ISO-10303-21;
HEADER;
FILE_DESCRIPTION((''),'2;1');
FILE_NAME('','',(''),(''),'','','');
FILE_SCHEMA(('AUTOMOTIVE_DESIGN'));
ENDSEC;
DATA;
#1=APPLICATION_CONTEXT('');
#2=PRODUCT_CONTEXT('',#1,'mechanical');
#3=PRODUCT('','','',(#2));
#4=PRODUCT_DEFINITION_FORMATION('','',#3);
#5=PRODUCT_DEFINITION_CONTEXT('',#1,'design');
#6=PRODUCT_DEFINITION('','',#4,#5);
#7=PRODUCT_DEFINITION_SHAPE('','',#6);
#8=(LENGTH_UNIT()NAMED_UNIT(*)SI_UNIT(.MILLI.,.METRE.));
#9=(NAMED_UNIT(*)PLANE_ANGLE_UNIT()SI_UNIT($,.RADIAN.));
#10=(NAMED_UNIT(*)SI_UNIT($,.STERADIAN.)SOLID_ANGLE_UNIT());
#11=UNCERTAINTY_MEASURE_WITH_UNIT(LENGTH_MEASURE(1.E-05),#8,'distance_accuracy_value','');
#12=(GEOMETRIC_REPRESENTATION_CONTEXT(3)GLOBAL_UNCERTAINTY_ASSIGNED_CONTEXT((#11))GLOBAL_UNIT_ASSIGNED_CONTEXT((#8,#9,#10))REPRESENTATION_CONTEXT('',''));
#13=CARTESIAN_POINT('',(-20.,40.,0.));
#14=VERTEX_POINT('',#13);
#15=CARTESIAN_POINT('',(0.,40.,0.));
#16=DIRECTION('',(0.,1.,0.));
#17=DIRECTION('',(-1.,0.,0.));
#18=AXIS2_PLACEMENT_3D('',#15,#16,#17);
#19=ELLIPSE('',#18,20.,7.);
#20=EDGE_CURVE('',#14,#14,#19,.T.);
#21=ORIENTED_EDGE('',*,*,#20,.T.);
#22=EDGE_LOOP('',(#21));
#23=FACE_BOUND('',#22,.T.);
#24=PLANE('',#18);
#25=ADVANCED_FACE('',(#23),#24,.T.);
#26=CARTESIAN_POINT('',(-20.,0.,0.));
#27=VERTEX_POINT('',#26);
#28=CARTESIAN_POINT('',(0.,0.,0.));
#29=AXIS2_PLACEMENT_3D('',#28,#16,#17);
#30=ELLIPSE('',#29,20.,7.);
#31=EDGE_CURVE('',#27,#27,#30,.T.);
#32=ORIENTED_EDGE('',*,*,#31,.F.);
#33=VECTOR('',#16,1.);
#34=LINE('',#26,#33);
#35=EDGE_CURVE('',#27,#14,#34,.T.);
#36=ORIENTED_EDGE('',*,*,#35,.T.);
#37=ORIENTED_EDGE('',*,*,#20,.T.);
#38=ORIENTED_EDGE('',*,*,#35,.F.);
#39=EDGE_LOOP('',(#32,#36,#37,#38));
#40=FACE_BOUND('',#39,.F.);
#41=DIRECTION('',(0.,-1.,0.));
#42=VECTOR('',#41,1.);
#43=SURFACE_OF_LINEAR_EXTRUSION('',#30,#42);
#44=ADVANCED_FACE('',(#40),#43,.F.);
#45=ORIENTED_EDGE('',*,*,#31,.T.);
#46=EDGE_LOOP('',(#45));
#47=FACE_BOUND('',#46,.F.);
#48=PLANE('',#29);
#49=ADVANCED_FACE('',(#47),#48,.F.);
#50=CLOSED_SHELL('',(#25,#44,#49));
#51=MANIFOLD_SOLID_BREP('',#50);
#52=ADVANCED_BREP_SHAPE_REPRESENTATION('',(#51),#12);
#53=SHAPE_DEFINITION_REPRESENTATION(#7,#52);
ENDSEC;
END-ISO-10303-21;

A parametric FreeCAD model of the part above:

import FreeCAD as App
import Part
import Sketcher

doc = App.newDocument("Part")
body = doc.addObject("PartDesign::Body", "Body")

sketch1 = body.newObject("Sketcher::SketchObject", "Sketch")
sketch1.AttachmentSupport = (doc.getObject("XZ_Plane"), [""])
sketch1.MapMode = "FlatFace"
sketch1.addGeometry(Part.Ellipse(App.Vector(-20, 0, 0), App.Vector(0, -7, 0), App.Vector(0, 0, 0)), False)
sketch1.addConstraint(Sketcher.Constraint("Block", 0))
pad1 = body.newObject("PartDesign::Pad", "Pad")
pad1.Profile = sketch1
pad1.Length = 40
pad1.Reversed = True

doc.recompute()
